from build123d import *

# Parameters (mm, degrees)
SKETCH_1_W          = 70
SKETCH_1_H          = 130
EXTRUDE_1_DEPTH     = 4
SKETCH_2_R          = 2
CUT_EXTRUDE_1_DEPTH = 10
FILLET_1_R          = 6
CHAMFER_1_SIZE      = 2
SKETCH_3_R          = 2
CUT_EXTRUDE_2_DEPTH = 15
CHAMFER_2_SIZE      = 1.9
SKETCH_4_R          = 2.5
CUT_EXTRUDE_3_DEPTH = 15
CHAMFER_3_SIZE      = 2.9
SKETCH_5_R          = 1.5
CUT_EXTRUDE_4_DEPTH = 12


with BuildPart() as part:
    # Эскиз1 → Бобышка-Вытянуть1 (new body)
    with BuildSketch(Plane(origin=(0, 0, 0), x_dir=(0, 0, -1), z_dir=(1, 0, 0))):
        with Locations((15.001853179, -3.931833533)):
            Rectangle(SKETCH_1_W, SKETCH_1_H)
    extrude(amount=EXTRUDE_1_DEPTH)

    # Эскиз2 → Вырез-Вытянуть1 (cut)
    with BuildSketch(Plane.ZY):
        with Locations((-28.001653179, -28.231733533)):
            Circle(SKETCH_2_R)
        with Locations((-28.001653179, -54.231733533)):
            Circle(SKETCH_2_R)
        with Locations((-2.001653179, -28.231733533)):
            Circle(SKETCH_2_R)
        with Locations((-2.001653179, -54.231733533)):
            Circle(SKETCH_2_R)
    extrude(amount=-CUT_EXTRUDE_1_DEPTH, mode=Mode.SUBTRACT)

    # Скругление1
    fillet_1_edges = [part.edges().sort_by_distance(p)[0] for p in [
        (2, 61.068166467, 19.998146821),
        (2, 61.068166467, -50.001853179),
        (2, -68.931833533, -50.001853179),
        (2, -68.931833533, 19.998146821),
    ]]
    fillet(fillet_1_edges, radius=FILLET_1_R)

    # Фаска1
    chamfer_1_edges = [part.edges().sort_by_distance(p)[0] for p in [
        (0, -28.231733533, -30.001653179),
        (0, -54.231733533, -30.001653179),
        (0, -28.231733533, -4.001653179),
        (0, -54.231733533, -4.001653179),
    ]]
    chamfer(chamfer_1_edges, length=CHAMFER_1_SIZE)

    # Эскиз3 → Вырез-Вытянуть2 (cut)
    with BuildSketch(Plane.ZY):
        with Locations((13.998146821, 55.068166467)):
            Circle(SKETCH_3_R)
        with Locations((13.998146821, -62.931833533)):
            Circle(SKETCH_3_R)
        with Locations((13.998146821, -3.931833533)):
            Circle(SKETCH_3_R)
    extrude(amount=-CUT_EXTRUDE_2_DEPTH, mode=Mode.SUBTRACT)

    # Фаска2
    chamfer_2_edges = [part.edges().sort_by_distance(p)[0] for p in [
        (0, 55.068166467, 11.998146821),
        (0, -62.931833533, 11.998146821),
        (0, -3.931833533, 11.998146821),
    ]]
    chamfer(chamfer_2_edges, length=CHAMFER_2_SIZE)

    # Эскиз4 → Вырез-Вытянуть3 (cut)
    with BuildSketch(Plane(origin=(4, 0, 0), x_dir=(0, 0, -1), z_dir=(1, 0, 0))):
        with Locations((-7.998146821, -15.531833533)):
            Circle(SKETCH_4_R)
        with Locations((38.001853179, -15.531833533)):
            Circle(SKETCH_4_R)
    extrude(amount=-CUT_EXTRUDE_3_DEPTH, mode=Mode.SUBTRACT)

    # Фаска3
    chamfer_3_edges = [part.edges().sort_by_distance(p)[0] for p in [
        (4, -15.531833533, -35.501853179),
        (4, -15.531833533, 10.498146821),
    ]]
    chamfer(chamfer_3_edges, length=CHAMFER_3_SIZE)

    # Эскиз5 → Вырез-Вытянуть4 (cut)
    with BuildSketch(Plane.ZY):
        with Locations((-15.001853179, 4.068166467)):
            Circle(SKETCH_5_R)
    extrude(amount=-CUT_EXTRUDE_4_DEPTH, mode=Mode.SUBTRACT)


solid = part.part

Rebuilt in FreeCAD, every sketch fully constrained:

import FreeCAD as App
import Part
import Sketcher
from FreeCAD import Vector
Q = App.Units.Quantity


def edges_at(feature, points):
    """Names of the edges that pass closest to the given points."""
    edges = feature.Shape.Edges
    near = lambda p: min(range(len(edges)), key=lambda i: edges[i].distToShape(Part.Vertex(*p))[0])
    return sorted({f"Edge{near(p) + 1}" for p in points})

doc = App.newDocument("Part")
params = doc.addObject("Spreadsheet::Sheet", "Params")
for row, (alias, value) in enumerate([
    ("sketch1_width", "130 mm"),
    ("sketch1_height", "70 mm"),
    ("pad1_length", "4 mm"),
    ("sketch2_diameter", "4 mm"),
    ("pocket1_length", "10 mm"),
    ("fillet_radius", "6 mm"),
    ("chamfer_size", "2 mm"),
    ("sketch3_diameter", "4 mm"),
    ("pocket2_length", "15 mm"),
    ("chamfer2_size", "1.9 mm"),
    ("sketch4_diameter", "5 mm"),
    ("pocket3_length", "15 mm"),
    ("chamfer3_size", "2.9 mm"),
    ("sketch5_diameter", "3 mm"),
    ("pocket4_length", "12 mm"),
], start=1):
    params.set(f"A{row}", alias)
    params.set(f"B{row}", "=" + value)
    params.setAlias(f"B{row}", alias)

body = doc.addObject("PartDesign::Body", "Body")

# Sketch on YZ plane
sketch1 = body.newObject("Sketcher::SketchObject", "Sketch")
sketch1.AttachmentSupport = (doc.getObject("YZ_Plane"), [""])
sketch1.MapMode = "FlatFace"
sketch1.addGeometry([
    Part.LineSegment(Vector(61.068166, 19.998147, 0), Vector(-68.931834, 19.998147, 0)),
    Part.LineSegment(Vector(-68.931834, 19.998147, 0), Vector(-68.931834, -50.001853, 0)),
    Part.LineSegment(Vector(-68.931834, -50.001853, 0), Vector(61.068166, -50.001853, 0)),
    Part.LineSegment(Vector(61.068166, -50.001853, 0), Vector(61.068166, 19.998147, 0)),
], False)
sketch1.addConstraint([
    Sketcher.Constraint("Coincident", 0, 2, 1, 1),
    Sketcher.Constraint("Coincident", 1, 2, 2, 1),
    Sketcher.Constraint("Coincident", 2, 2, 3, 1),
    Sketcher.Constraint("Coincident", 3, 2, 0, 1),
    Sketcher.Constraint("Horizontal", 0),
    Sketcher.Constraint("Vertical", 1),
    Sketcher.Constraint("Horizontal", 2),
    Sketcher.Constraint("Vertical", 3),
    Sketcher.Constraint("DistanceX", 0, 2, 0, 1, Q("130 mm")),
    Sketcher.Constraint("DistanceY", 1, 2, 1, 1, Q("70 mm")),
    Sketcher.Constraint("DistanceX", 0, 2, -1, 1, Q("68.931834 mm")),
    Sketcher.Constraint("DistanceY", -1, 1, 0, 2, Q("19.998147 mm")),
])
sketch1.setExpression("Constraints[8]", "Params.sketch1_width")
sketch1.setExpression("Constraints[9]", "Params.sketch1_height")
pad1 = body.newObject("PartDesign::Pad", "Pad")
pad1.Profile = sketch1
pad1.setExpression("Length", "Params.pad1_length")

# Sketch on YZ plane
sketch2 = body.newObject("Sketcher::SketchObject", "Sketch001")
sketch2.AttachmentSupport = (doc.getObject("YZ_Plane"), [""])
sketch2.MapMode = "FlatFace"
sketch2.addGeometry([
    Part.Circle(Vector(-28.231734, -28.001653, 0), Vector(0, 0, 1), 2),
    Part.Circle(Vector(-54.231734, -28.001653, 0), Vector(0, 0, 1), 2),
    Part.Circle(Vector(-28.231734, -2.001653, 0), Vector(0, 0, 1), 2),
    Part.Circle(Vector(-54.231734, -2.001653, 0), Vector(0, 0, 1), 2),
], False)
sketch2.addConstraint([
    Sketcher.Constraint("Equal", 0, 1),
    Sketcher.Constraint("Equal", 1, 2),
    Sketcher.Constraint("Equal", 2, 3),
    Sketcher.Constraint("Horizontal", 0, 3, 1, 3),
    Sketcher.Constraint("Horizontal", 2, 3, 3, 3),
    Sketcher.Constraint("Vertical", 0, 3, 2, 3),
    Sketcher.Constraint("Vertical", 1, 3, 3, 3),
    Sketcher.Constraint("Diameter", 0, Q("4 mm")),
    Sketcher.Constraint("DistanceX", 1, 3, 0, 3, Q("26 mm")),
    Sketcher.Constraint("DistanceY", 0, 3, 2, 3, Q("26 mm")),
    Sketcher.Constraint("DistanceX", 0, 3, -1, 1, Q("28.231734 mm")),
    Sketcher.Constraint("DistanceY", 0, 3, -1, 1, Q("28.001653 mm")),
])
sketch2.setExpression("Constraints[7]", "Params.sketch2_diameter")
pocket1 = body.newObject("PartDesign::Pocket", "Pocket")
pocket1.Profile = sketch2
pocket1.setExpression("Length", "Params.pocket1_length")
pocket1.Reversed = True
doc.recompute()

fillet = body.newObject("PartDesign::Fillet", "Fillet")
fillet.Base = (pocket1, edges_at(pocket1, [
    (2, 61.068, 19.998),
    (2, 61.068, -50.002),
    (2, -68.932, -50.002),
    (2, -68.932, 19.998),
]))
fillet.setExpression("Radius", "Params.fillet_radius")
doc.recompute()

chamfer = body.newObject("PartDesign::Chamfer", "Chamfer")
chamfer.Base = (fillet, edges_at(fillet, [
    (0, -28.232, -30.002),
    (0, -54.232, -30.002),
    (0, -28.232, -4.002),
    (0, -54.232, -4.002),
]))
chamfer.setExpression("Size", "Params.chamfer_size")

# Sketch on YZ plane
sketch3 = body.newObject("Sketcher::SketchObject", "Sketch002")
sketch3.AttachmentSupport = (doc.getObject("YZ_Plane"), [""])
sketch3.MapMode = "FlatFace"
sketch3.addGeometry([
    Part.Circle(Vector(55.068166, 13.998147, 0), Vector(0, 0, 1), 2),
    Part.Circle(Vector(-62.931834, 13.998147, 0), Vector(0, 0, 1), 2),
    Part.Circle(Vector(-3.931834, 13.998147, 0), Vector(0, 0, 1), 2),
], False)
sketch3.addConstraint([
    Sketcher.Constraint("Equal", 0, 1),
    Sketcher.Constraint("Equal", 1, 2),
    Sketcher.Constraint("Horizontal", 0, 3, 1, 3),
    Sketcher.Constraint("Horizontal", 1, 3, 2, 3),
    Sketcher.Constraint("Diameter", 0, Q("4 mm")),
    Sketcher.Constraint("DistanceX", 1, 3, 0, 3, Q("118 mm")),
    Sketcher.Constraint("DistanceX", 2, 3, 0, 3, Q("59 mm")),
    Sketcher.Constraint("DistanceX", -1, 1, 0, 3, Q("55.068166 mm")),
    Sketcher.Constraint("DistanceY", -1, 1, 0, 3, Q("13.998147 mm")),
])
sketch3.setExpression("Constraints[4]", "Params.sketch3_diameter")
pocket2 = body.newObject("PartDesign::Pocket", "Pocket001")
pocket2.Profile = sketch3
pocket2.setExpression("Length", "Params.pocket2_length")
pocket2.Reversed = True
doc.recompute()

chamfer2 = body.newObject("PartDesign::Chamfer", "Chamfer001")
chamfer2.Base = (pocket2, edges_at(pocket2, [(0, 55.068, 11.998), (0, -62.932, 11.998), (0, -3.932, 11.998)]))
chamfer2.setExpression("Size", "Params.chamfer2_size")

# Sketch on YZ plane
sketch4 = body.newObject("Sketcher::SketchObject", "Sketch003")
sketch4.AttachmentSupport = (doc.getObject("YZ_Plane"), [""])
sketch4.MapMode = "FlatFace"
sketch4.AttachmentOffset = App.Placement(Vector(0, 0, 4), App.Rotation())
sketch4.addGeometry([
    Part.Circle(Vector(-15.531834, 7.998147, 0), Vector(0, 0, 1), 2.5),
    Part.Circle(Vector(-15.531834, -38.001853, 0), Vector(0, 0, 1), 2.5),
], False)
sketch4.addConstraint([
    Sketcher.Constraint("Equal", 0, 1),
    Sketcher.Constraint("Vertical", 0, 3, 1, 3),
    Sketcher.Constraint("Diameter", 0, Q("5 mm")),
    Sketcher.Constraint("DistanceY", 1, 3, 0, 3, Q("46 mm")),
    Sketcher.Constraint("DistanceX", 0, 3, -1, 1, Q("15.531834 mm")),
    Sketcher.Constraint("DistanceY", -1, 1, 0, 3, Q("7.998147 mm")),
])
sketch4.setExpression("Constraints[2]", "Params.sketch4_diameter")
pocket3 = body.newObject("PartDesign::Pocket", "Pocket002")
pocket3.Profile = sketch4
pocket3.setExpression("Length", "Params.pocket3_length")
doc.recompute()

chamfer3 = body.newObject("PartDesign::Chamfer", "Chamfer002")
chamfer3.Base = (pocket3, edges_at(pocket3, [(4, -15.532, -35.502), (4, -15.532, 10.498)]))
chamfer3.setExpression("Size", "Params.chamfer3_size")

# Sketch on YZ plane
sketch5 = body.newObject("Sketcher::SketchObject", "Sketch004")
sketch5.AttachmentSupport = (doc.getObject("YZ_Plane"), [""])
sketch5.MapMode = "FlatFace"
sketch5.addGeometry(Part.Circle(Vector(4.068166, -15.001853, 0), Vector(0, 0, 1), 1.5), False)
sketch5.addConstraint([
    Sketcher.Constraint("Diameter", 0, Q("3 mm")),
    Sketcher.Constraint("DistanceX", -1, 1, 0, 3, Q("4.068166 mm")),
    Sketcher.Constraint("DistanceY", 0, 3, -1, 1, Q("15.001853 mm")),
])
sketch5.setExpression("Constraints[0]", "Params.sketch5_diameter")
pocket4 = body.newObject("PartDesign::Pocket", "Pocket003")
pocket4.Profile = sketch5
pocket4.setExpression("Length", "Params.pocket4_length")
pocket4.Reversed = True

doc.recompute()
